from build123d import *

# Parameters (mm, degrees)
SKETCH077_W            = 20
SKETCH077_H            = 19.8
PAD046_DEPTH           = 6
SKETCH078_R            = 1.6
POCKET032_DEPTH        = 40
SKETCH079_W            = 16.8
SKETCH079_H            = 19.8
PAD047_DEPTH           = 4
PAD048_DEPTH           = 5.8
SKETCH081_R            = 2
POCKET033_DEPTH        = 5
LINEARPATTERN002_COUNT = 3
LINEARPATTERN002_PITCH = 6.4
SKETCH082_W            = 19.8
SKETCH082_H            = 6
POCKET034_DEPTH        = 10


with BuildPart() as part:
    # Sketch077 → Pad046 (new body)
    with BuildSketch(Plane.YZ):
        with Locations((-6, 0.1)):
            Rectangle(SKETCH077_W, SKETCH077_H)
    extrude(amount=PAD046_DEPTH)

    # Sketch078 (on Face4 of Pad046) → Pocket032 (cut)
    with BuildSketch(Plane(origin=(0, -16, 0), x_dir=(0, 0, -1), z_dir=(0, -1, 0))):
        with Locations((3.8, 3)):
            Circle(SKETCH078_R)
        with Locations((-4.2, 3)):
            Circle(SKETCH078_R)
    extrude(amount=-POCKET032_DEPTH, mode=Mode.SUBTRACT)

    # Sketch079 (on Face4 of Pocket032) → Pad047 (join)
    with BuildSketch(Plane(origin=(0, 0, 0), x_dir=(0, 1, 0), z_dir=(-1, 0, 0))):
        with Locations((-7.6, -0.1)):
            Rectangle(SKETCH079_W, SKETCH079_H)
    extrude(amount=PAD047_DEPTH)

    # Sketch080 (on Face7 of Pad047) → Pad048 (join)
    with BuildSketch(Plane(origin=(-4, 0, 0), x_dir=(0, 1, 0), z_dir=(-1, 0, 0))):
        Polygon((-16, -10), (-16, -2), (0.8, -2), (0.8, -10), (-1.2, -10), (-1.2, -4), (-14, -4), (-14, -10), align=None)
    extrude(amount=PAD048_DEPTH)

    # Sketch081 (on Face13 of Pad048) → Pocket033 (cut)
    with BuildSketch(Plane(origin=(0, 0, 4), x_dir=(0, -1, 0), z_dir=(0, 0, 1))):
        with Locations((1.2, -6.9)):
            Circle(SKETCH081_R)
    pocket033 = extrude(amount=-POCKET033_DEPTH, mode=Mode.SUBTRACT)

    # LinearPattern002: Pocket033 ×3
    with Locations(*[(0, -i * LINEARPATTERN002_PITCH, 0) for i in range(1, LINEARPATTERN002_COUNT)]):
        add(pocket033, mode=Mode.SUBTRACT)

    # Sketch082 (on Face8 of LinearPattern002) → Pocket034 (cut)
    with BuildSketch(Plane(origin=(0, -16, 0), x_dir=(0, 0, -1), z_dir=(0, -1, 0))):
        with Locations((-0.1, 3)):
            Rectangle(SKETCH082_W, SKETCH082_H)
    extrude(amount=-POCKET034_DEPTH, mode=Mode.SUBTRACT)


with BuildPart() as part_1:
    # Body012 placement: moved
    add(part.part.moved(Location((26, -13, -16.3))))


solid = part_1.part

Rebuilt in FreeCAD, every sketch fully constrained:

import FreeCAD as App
import Part
import Sketcher

doc = App.newDocument("Part")
params = doc.addObject("Spreadsheet::Sheet", "Params")
for row, (alias, value) in enumerate([
    ("sketch1_width", "20 mm"),
    ("sketch1_height", "19.8 mm"),
    ("pad1_length", "6 mm"),
    ("sketch2_diameter", "3.2 mm"),
    ("pocket1_length", "40 mm"),
    ("sketch3_width", "16.8 mm"),
    ("sketch3_height", "19.8 mm"),
    ("pad2_length", "4 mm"),
    ("sketch4_width", "2 mm"),
    ("sketch4_height", "8 mm"),
    ("sketch4_height2", "6 mm"),
    ("sketch4_width2", "12.8 mm"),
    ("pad3_length", "5.8 mm"),
    ("sketch5_diameter", "4 mm"),
    ("pocket2_length", "5 mm"),
    ("linearpattern_pitch", "6.4 mm"),
    ("sketch6_width", "6 mm"),
    ("sketch6_height", "19.8 mm"),
    ("pocket3_length", "10 mm"),
], start=1):
    params.set(f"A{row}", alias)
    params.set(f"B{row}", "=" + value)
    params.setAlias(f"B{row}", alias)

body = doc.addObject("PartDesign::Body", "Body")

# Sketch on YZ plane
sketch1 = doc.addObject("Sketcher::SketchObject", "Sketch")
body.addObject(sketch1)
sketch1.AttachmentSupport = (doc.YZ_Plane, [""])
sketch1.MapMode = "FlatFace"
sketch1.addGeometry([
    Part.LineSegment(App.Vector(-16, 10, 0), App.Vector(-16, -10, 0)),
    Part.LineSegment(App.Vector(-16, -10, 0), App.Vector(4, -10, 0)),
    Part.LineSegment(App.Vector(4, -10, 0), App.Vector(4, 10, 0)),
    Part.LineSegment(App.Vector(4, 10, 0), App.Vector(-16, 10, 0)),
], False)
sketch1.addConstraint([
    Sketcher.Constraint("Coincident", 0, 2, 1, 1),
    Sketcher.Constraint("Coincident", 1, 2, 2, 1),
    Sketcher.Constraint("Coincident", 2, 2, 3, 1),
    Sketcher.Constraint("Coincident", 3, 2, 0, 1),
    Sketcher.Constraint("Vertical", 0),
    Sketcher.Constraint("Horizontal", 1),
    Sketcher.Constraint("Vertical", 2),
    Sketcher.Constraint("Horizontal", 3),
    Sketcher.Constraint("DistanceX", 1, 1, 1, 2, 20.0),
    Sketcher.Constraint("DistanceY", 0, 2, 0, 1, 19.8),
    Sketcher.Constraint("DistanceX", 0, 2, -1, 1, 16.0),
    Sketcher.Constraint("DistanceY", -1, 1, 2, 2, 10.0),
])
sketch1.setExpression("Constraints[8]", "Params.sketch1_width")
sketch1.setExpression("Constraints[9]", "Params.sketch1_height")
pad1 = doc.addObject("PartDesign::Pad", "Pad")
body.addObject(pad1)
pad1.Profile = sketch1
pad1.setExpression("Length", "Params.pad1_length")

# Sketch on XZ plane
sketch2 = doc.addObject("Sketcher::SketchObject", "Sketch001")
body.addObject(sketch2)
sketch2.AttachmentSupport = (doc.XZ_Plane, [""])
sketch2.MapMode = "FlatFace"
sketch2.AttachmentOffset = App.Placement(App.Vector(0, 0, 16), App.Rotation())
sketch2.addGeometry([
    Part.Circle(App.Vector(3, -3.8, 0), App.Vector(0, 0, 1), 1.6),
    Part.Circle(App.Vector(3, 4.2, 0), App.Vector(0, 0, 1), 1.6),
], False)
sketch2.addConstraint([
    Sketcher.Constraint("Equal", 0, 1),
    Sketcher.Constraint("Vertical", 0, 3, 1, 3),
    Sketcher.Constraint("Diameter", 0, 3.2),
    Sketcher.Constraint("DistanceX", -1, 1, 0, 3, 3.0),
    Sketcher.Constraint("DistanceY", 0, 3, 1, 3, 8.0),
    Sketcher.Constraint("DistanceY", 0, 3, -1, 1, 3.8),
])
sketch2.setExpression("Constraints[2]", "Params.sketch2_diameter")
pocket1 = doc.addObject("PartDesign::Pocket", "Pocket")
body.addObject(pocket1)
pocket1.Profile = sketch2
pocket1.setExpression("Length", "Params.pocket1_length")

# Sketch on YZ plane
sketch3 = doc.addObject("Sketcher::SketchObject", "Sketch002")
body.addObject(sketch3)
sketch3.AttachmentSupport = (doc.YZ_Plane, [""])
sketch3.MapMode = "FlatFace"
sketch3.addGeometry([
    Part.LineSegment(App.Vector(-16, -10, 0), App.Vector(-16, 10, 0)),
    Part.LineSegment(App.Vector(-16, 10, 0), App.Vector(1, 10, 0)),
    Part.LineSegment(App.Vector(1, 10, 0), App.Vector(1, -10, 0)),
    Part.LineSegment(App.Vector(1, -10, 0), App.Vector(-16, -10, 0)),
], False)
sketch3.addConstraint([
    Sketcher.Constraint("Coincident", 0, 2, 1, 1),
    Sketcher.Constraint("Coincident", 1, 2, 2, 1),
    Sketcher.Constraint("Coincident", 2, 2, 3, 1),
    Sketcher.Constraint("Coincident", 3, 2, 0, 1),
    Sketcher.Constraint("Vertical", 0),
    Sketcher.Constraint("Horizontal", 1),
    Sketcher.Constraint("Vertical", 2),
    Sketcher.Constraint("Horizontal", 3),
    Sketcher.Constraint("DistanceX", 1, 1, 1, 2, 16.8),
    Sketcher.Constraint("DistanceY", 0, 1, 0, 2, 19.8),
    Sketcher.Constraint("DistanceX", 0, 2, -1, 1, 16.0),
    Sketcher.Constraint("DistanceY", -1, 1, 0, 2, 10.0),
])
sketch3.setExpression("Constraints[8]", "Params.sketch3_width")
sketch3.setExpression("Constraints[9]", "Params.sketch3_height")
pad2 = doc.addObject("PartDesign::Pad", "Pad001")
body.addObject(pad2)
pad2.Profile = sketch3
pad2.setExpression("Length", "Params.pad2_length")
pad2.Reversed = True

# Sketch on YZ plane
sketch4 = doc.addObject("Sketcher::SketchObject", "Sketch003")
body.addObject(sketch4)
sketch4.AttachmentSupport = (doc.YZ_Plane, [""])
sketch4.MapMode = "FlatFace"
sketch4.AttachmentOffset = App.Placement(App.Vector(0, 0, -4), App.Rotation())
sketch4.addGeometry([
    Part.LineSegment(App.Vector(-16, 2, 0), App.Vector(-16, 10, 0)),  # 0
    Part.LineSegment(App.Vector(-16, 10, 0), App.Vector(-14, 10, 0)),  # 1
    Part.LineSegment(App.Vector(-14, 10, 0), App.Vector(-14, 4, 0)),  # 2
    Part.LineSegment(App.Vector(-14, 4, 0), App.Vector(-1.2, 4, 0)),  # 3
    Part.LineSegment(App.Vector(-1.2, 4, 0), App.Vector(-1.2, 10, 0)),  # 4
    Part.LineSegment(App.Vector(-1.2, 10, 0), App.Vector(0.8, 10, 0)),  # 5
    Part.LineSegment(App.Vector(0.8, 10, 0), App.Vector(0.8, 2, 0)),  # 6
    Part.LineSegment(App.Vector(0.8, 2, 0), App.Vector(-16, 2, 0)),  # 7
], False)
sketch4.addConstraint([
    Sketcher.Constraint("Coincident", 0, 2, 1, 1),
    Sketcher.Constraint("Coincident", 1, 2, 2, 1),
    Sketcher.Constraint("Coincident", 2, 2, 3, 1),
    Sketcher.Constraint("Coincident", 3, 2, 4, 1),
    Sketcher.Constraint("Coincident", 4, 2, 5, 1),
    Sketcher.Constraint("Coincident", 5, 2, 6, 1),
    Sketcher.Constraint("Coincident", 6, 2, 7, 1),
    Sketcher.Constraint("Coincident", 7, 2, 0, 1),
    Sketcher.Constraint("Vertical", 0),
    Sketcher.Constraint("Horizontal", 1),
    Sketcher.Constraint("Vertical", 2),
    Sketcher.Constraint("Horizontal", 3),
    Sketcher.Constraint("Vertical", 4),
    Sketcher.Constraint("Horizontal", 5),
    Sketcher.Constraint("Vertical", 6),
    Sketcher.Constraint("Horizontal", 7),
    Sketcher.Constraint("Horizontal", 1, 2, 4, 2),
    Sketcher.Constraint("Equal", 1, 5),
    Sketcher.Constraint("DistanceX", 1, 1, 1, 2, 2.0),
    Sketcher.Constraint("DistanceY", 0, 1, 0, 2, 8.0),
    Sketcher.Constraint("DistanceY", 2, 2, 2, 1, 6.0),
    Sketcher.Constraint("DistanceX", 3, 1, 3, 2, 12.8),
    Sketcher.Constraint("DistanceX", 0, 2, -1, 1, 16.0),
    Sketcher.Constraint("DistanceY", -1, 1, 0, 2, 10.0),
])
sketch4.setExpression("Constraints[18]", "Params.sketch4_width")
sketch4.setExpression("Constraints[19]", "Params.sketch4_height")
sketch4.setExpression("Constraints[20]", "Params.sketch4_height2")
sketch4.setExpression("Constraints[21]", "Params.sketch4_width2")
pad3 = doc.addObject("PartDesign::Pad", "Pad002")
body.addObject(pad3)
pad3.Profile = sketch4
pad3.setExpression("Length", "Params.pad3_length")
pad3.Reversed = True

# Sketch on XY plane
sketch5 = doc.addObject("Sketcher::SketchObject", "Sketch004")
body.addObject(sketch5)
sketch5.AttachmentSupport = (doc.XY_Plane, [""])
sketch5.MapMode = "FlatFace"
sketch5.AttachmentOffset = App.Placement(App.Vector(0, 0, 4), App.Rotation())
sketch5.addGeometry(Part.Circle(App.Vector(-6.9, -1.2, 0), App.Vector(0, 0, 1), 2), False)
sketch5.addConstraint([
    Sketcher.Constraint("Diameter", 0, 4.0),
    Sketcher.Constraint("DistanceX", 0, 3, -1, 1, 6.9),
    Sketcher.Constraint("DistanceY", 0, 3, -1, 1, 1.2),
])
sketch5.setExpression("Constraints[0]", "Params.sketch5_diameter")
pocket2 = doc.addObject("PartDesign::Pocket", "Pocket001")
body.addObject(pocket2)
pocket2.Profile = sketch5
pocket2.setExpression("Length", "Params.pocket2_length")
doc.recompute()

linearpattern = doc.addObject("PartDesign::LinearPattern", "LinearPattern")
body.addObject(linearpattern)
linearpattern.Originals = [pocket2]
linearpattern.Direction = (doc.Y_Axis, [""])
linearpattern.Mode = "offset"
linearpattern.setExpression("Offset", "Params.linearpattern_pitch")
linearpattern.Occurrences = 3
linearpattern.Reversed = True
body.Tip = linearpattern

# Sketch on XZ plane
sketch6 = doc.addObject("Sketcher::SketchObject", "Sketch005")
body.addObject(sketch6)
sketch6.AttachmentSupport = (doc.XZ_Plane, [""])
sketch6.MapMode = "FlatFace"
sketch6.AttachmentOffset = App.Placement(App.Vector(0, 0, 16), App.Rotation())
sketch6.addGeometry([
    Part.LineSegment(App.Vector(6, 10, 0), App.Vector(0, 10, 0)),
    Part.LineSegment(App.Vector(0, 10, 0), App.Vector(0, -10, 0)),
    Part.LineSegment(App.Vector(0, -10, 0), App.Vector(6, -10, 0)),
    Part.LineSegment(App.Vector(6, -10, 0), App.Vector(6, 10, 0)),
], False)
sketch6.addConstraint([
    Sketcher.Constraint("Coincident", 0, 2, 1, 1),
    Sketcher.Constraint("Coincident", 1, 2, 2, 1),
    Sketcher.Constraint("Coincident", 2, 2, 3, 1),
    Sketcher.Constraint("Coincident", 3, 2, 0, 1),
    Sketcher.Constraint("Horizontal", 0),
    Sketcher.Constraint("Vertical", 1),
    Sketcher.Constraint("Horizontal", 2),
    Sketcher.Constraint("Vertical", 3),
    Sketcher.Constraint("PointOnObject", 0, 2, -2),
    Sketcher.Constraint("DistanceX", 0, 2, 0, 1, 6.0),
    Sketcher.Constraint("DistanceY", 1, 2, 1, 1, 19.8),
    Sketcher.Constraint("DistanceY", -1, 1, 0, 2, 10.0),
])
sketch6.setExpression("Constraints[9]", "Params.sketch6_width")
sketch6.setExpression("Constraints[10]", "Params.sketch6_height")
pocket3 = doc.addObject("PartDesign::Pocket", "Pocket002")
body.addObject(pocket3)
pocket3.Profile = sketch6
pocket3.setExpression("Length", "Params.pocket3_length")
body2 = doc.addObject("PartDesign::Body", "Body001")
doc.recompute()

body.Placement = App.Placement(App.Vector(26, -13, -16.3), App.Rotation(App.Vector(0, 0, 1), 0))
boolean = doc.addObject("PartDesign::Boolean", "Boolean")
body2.addObject(boolean)
boolean.Type = "Fuse"
boolean.addObjects([body])

doc.recompute()
